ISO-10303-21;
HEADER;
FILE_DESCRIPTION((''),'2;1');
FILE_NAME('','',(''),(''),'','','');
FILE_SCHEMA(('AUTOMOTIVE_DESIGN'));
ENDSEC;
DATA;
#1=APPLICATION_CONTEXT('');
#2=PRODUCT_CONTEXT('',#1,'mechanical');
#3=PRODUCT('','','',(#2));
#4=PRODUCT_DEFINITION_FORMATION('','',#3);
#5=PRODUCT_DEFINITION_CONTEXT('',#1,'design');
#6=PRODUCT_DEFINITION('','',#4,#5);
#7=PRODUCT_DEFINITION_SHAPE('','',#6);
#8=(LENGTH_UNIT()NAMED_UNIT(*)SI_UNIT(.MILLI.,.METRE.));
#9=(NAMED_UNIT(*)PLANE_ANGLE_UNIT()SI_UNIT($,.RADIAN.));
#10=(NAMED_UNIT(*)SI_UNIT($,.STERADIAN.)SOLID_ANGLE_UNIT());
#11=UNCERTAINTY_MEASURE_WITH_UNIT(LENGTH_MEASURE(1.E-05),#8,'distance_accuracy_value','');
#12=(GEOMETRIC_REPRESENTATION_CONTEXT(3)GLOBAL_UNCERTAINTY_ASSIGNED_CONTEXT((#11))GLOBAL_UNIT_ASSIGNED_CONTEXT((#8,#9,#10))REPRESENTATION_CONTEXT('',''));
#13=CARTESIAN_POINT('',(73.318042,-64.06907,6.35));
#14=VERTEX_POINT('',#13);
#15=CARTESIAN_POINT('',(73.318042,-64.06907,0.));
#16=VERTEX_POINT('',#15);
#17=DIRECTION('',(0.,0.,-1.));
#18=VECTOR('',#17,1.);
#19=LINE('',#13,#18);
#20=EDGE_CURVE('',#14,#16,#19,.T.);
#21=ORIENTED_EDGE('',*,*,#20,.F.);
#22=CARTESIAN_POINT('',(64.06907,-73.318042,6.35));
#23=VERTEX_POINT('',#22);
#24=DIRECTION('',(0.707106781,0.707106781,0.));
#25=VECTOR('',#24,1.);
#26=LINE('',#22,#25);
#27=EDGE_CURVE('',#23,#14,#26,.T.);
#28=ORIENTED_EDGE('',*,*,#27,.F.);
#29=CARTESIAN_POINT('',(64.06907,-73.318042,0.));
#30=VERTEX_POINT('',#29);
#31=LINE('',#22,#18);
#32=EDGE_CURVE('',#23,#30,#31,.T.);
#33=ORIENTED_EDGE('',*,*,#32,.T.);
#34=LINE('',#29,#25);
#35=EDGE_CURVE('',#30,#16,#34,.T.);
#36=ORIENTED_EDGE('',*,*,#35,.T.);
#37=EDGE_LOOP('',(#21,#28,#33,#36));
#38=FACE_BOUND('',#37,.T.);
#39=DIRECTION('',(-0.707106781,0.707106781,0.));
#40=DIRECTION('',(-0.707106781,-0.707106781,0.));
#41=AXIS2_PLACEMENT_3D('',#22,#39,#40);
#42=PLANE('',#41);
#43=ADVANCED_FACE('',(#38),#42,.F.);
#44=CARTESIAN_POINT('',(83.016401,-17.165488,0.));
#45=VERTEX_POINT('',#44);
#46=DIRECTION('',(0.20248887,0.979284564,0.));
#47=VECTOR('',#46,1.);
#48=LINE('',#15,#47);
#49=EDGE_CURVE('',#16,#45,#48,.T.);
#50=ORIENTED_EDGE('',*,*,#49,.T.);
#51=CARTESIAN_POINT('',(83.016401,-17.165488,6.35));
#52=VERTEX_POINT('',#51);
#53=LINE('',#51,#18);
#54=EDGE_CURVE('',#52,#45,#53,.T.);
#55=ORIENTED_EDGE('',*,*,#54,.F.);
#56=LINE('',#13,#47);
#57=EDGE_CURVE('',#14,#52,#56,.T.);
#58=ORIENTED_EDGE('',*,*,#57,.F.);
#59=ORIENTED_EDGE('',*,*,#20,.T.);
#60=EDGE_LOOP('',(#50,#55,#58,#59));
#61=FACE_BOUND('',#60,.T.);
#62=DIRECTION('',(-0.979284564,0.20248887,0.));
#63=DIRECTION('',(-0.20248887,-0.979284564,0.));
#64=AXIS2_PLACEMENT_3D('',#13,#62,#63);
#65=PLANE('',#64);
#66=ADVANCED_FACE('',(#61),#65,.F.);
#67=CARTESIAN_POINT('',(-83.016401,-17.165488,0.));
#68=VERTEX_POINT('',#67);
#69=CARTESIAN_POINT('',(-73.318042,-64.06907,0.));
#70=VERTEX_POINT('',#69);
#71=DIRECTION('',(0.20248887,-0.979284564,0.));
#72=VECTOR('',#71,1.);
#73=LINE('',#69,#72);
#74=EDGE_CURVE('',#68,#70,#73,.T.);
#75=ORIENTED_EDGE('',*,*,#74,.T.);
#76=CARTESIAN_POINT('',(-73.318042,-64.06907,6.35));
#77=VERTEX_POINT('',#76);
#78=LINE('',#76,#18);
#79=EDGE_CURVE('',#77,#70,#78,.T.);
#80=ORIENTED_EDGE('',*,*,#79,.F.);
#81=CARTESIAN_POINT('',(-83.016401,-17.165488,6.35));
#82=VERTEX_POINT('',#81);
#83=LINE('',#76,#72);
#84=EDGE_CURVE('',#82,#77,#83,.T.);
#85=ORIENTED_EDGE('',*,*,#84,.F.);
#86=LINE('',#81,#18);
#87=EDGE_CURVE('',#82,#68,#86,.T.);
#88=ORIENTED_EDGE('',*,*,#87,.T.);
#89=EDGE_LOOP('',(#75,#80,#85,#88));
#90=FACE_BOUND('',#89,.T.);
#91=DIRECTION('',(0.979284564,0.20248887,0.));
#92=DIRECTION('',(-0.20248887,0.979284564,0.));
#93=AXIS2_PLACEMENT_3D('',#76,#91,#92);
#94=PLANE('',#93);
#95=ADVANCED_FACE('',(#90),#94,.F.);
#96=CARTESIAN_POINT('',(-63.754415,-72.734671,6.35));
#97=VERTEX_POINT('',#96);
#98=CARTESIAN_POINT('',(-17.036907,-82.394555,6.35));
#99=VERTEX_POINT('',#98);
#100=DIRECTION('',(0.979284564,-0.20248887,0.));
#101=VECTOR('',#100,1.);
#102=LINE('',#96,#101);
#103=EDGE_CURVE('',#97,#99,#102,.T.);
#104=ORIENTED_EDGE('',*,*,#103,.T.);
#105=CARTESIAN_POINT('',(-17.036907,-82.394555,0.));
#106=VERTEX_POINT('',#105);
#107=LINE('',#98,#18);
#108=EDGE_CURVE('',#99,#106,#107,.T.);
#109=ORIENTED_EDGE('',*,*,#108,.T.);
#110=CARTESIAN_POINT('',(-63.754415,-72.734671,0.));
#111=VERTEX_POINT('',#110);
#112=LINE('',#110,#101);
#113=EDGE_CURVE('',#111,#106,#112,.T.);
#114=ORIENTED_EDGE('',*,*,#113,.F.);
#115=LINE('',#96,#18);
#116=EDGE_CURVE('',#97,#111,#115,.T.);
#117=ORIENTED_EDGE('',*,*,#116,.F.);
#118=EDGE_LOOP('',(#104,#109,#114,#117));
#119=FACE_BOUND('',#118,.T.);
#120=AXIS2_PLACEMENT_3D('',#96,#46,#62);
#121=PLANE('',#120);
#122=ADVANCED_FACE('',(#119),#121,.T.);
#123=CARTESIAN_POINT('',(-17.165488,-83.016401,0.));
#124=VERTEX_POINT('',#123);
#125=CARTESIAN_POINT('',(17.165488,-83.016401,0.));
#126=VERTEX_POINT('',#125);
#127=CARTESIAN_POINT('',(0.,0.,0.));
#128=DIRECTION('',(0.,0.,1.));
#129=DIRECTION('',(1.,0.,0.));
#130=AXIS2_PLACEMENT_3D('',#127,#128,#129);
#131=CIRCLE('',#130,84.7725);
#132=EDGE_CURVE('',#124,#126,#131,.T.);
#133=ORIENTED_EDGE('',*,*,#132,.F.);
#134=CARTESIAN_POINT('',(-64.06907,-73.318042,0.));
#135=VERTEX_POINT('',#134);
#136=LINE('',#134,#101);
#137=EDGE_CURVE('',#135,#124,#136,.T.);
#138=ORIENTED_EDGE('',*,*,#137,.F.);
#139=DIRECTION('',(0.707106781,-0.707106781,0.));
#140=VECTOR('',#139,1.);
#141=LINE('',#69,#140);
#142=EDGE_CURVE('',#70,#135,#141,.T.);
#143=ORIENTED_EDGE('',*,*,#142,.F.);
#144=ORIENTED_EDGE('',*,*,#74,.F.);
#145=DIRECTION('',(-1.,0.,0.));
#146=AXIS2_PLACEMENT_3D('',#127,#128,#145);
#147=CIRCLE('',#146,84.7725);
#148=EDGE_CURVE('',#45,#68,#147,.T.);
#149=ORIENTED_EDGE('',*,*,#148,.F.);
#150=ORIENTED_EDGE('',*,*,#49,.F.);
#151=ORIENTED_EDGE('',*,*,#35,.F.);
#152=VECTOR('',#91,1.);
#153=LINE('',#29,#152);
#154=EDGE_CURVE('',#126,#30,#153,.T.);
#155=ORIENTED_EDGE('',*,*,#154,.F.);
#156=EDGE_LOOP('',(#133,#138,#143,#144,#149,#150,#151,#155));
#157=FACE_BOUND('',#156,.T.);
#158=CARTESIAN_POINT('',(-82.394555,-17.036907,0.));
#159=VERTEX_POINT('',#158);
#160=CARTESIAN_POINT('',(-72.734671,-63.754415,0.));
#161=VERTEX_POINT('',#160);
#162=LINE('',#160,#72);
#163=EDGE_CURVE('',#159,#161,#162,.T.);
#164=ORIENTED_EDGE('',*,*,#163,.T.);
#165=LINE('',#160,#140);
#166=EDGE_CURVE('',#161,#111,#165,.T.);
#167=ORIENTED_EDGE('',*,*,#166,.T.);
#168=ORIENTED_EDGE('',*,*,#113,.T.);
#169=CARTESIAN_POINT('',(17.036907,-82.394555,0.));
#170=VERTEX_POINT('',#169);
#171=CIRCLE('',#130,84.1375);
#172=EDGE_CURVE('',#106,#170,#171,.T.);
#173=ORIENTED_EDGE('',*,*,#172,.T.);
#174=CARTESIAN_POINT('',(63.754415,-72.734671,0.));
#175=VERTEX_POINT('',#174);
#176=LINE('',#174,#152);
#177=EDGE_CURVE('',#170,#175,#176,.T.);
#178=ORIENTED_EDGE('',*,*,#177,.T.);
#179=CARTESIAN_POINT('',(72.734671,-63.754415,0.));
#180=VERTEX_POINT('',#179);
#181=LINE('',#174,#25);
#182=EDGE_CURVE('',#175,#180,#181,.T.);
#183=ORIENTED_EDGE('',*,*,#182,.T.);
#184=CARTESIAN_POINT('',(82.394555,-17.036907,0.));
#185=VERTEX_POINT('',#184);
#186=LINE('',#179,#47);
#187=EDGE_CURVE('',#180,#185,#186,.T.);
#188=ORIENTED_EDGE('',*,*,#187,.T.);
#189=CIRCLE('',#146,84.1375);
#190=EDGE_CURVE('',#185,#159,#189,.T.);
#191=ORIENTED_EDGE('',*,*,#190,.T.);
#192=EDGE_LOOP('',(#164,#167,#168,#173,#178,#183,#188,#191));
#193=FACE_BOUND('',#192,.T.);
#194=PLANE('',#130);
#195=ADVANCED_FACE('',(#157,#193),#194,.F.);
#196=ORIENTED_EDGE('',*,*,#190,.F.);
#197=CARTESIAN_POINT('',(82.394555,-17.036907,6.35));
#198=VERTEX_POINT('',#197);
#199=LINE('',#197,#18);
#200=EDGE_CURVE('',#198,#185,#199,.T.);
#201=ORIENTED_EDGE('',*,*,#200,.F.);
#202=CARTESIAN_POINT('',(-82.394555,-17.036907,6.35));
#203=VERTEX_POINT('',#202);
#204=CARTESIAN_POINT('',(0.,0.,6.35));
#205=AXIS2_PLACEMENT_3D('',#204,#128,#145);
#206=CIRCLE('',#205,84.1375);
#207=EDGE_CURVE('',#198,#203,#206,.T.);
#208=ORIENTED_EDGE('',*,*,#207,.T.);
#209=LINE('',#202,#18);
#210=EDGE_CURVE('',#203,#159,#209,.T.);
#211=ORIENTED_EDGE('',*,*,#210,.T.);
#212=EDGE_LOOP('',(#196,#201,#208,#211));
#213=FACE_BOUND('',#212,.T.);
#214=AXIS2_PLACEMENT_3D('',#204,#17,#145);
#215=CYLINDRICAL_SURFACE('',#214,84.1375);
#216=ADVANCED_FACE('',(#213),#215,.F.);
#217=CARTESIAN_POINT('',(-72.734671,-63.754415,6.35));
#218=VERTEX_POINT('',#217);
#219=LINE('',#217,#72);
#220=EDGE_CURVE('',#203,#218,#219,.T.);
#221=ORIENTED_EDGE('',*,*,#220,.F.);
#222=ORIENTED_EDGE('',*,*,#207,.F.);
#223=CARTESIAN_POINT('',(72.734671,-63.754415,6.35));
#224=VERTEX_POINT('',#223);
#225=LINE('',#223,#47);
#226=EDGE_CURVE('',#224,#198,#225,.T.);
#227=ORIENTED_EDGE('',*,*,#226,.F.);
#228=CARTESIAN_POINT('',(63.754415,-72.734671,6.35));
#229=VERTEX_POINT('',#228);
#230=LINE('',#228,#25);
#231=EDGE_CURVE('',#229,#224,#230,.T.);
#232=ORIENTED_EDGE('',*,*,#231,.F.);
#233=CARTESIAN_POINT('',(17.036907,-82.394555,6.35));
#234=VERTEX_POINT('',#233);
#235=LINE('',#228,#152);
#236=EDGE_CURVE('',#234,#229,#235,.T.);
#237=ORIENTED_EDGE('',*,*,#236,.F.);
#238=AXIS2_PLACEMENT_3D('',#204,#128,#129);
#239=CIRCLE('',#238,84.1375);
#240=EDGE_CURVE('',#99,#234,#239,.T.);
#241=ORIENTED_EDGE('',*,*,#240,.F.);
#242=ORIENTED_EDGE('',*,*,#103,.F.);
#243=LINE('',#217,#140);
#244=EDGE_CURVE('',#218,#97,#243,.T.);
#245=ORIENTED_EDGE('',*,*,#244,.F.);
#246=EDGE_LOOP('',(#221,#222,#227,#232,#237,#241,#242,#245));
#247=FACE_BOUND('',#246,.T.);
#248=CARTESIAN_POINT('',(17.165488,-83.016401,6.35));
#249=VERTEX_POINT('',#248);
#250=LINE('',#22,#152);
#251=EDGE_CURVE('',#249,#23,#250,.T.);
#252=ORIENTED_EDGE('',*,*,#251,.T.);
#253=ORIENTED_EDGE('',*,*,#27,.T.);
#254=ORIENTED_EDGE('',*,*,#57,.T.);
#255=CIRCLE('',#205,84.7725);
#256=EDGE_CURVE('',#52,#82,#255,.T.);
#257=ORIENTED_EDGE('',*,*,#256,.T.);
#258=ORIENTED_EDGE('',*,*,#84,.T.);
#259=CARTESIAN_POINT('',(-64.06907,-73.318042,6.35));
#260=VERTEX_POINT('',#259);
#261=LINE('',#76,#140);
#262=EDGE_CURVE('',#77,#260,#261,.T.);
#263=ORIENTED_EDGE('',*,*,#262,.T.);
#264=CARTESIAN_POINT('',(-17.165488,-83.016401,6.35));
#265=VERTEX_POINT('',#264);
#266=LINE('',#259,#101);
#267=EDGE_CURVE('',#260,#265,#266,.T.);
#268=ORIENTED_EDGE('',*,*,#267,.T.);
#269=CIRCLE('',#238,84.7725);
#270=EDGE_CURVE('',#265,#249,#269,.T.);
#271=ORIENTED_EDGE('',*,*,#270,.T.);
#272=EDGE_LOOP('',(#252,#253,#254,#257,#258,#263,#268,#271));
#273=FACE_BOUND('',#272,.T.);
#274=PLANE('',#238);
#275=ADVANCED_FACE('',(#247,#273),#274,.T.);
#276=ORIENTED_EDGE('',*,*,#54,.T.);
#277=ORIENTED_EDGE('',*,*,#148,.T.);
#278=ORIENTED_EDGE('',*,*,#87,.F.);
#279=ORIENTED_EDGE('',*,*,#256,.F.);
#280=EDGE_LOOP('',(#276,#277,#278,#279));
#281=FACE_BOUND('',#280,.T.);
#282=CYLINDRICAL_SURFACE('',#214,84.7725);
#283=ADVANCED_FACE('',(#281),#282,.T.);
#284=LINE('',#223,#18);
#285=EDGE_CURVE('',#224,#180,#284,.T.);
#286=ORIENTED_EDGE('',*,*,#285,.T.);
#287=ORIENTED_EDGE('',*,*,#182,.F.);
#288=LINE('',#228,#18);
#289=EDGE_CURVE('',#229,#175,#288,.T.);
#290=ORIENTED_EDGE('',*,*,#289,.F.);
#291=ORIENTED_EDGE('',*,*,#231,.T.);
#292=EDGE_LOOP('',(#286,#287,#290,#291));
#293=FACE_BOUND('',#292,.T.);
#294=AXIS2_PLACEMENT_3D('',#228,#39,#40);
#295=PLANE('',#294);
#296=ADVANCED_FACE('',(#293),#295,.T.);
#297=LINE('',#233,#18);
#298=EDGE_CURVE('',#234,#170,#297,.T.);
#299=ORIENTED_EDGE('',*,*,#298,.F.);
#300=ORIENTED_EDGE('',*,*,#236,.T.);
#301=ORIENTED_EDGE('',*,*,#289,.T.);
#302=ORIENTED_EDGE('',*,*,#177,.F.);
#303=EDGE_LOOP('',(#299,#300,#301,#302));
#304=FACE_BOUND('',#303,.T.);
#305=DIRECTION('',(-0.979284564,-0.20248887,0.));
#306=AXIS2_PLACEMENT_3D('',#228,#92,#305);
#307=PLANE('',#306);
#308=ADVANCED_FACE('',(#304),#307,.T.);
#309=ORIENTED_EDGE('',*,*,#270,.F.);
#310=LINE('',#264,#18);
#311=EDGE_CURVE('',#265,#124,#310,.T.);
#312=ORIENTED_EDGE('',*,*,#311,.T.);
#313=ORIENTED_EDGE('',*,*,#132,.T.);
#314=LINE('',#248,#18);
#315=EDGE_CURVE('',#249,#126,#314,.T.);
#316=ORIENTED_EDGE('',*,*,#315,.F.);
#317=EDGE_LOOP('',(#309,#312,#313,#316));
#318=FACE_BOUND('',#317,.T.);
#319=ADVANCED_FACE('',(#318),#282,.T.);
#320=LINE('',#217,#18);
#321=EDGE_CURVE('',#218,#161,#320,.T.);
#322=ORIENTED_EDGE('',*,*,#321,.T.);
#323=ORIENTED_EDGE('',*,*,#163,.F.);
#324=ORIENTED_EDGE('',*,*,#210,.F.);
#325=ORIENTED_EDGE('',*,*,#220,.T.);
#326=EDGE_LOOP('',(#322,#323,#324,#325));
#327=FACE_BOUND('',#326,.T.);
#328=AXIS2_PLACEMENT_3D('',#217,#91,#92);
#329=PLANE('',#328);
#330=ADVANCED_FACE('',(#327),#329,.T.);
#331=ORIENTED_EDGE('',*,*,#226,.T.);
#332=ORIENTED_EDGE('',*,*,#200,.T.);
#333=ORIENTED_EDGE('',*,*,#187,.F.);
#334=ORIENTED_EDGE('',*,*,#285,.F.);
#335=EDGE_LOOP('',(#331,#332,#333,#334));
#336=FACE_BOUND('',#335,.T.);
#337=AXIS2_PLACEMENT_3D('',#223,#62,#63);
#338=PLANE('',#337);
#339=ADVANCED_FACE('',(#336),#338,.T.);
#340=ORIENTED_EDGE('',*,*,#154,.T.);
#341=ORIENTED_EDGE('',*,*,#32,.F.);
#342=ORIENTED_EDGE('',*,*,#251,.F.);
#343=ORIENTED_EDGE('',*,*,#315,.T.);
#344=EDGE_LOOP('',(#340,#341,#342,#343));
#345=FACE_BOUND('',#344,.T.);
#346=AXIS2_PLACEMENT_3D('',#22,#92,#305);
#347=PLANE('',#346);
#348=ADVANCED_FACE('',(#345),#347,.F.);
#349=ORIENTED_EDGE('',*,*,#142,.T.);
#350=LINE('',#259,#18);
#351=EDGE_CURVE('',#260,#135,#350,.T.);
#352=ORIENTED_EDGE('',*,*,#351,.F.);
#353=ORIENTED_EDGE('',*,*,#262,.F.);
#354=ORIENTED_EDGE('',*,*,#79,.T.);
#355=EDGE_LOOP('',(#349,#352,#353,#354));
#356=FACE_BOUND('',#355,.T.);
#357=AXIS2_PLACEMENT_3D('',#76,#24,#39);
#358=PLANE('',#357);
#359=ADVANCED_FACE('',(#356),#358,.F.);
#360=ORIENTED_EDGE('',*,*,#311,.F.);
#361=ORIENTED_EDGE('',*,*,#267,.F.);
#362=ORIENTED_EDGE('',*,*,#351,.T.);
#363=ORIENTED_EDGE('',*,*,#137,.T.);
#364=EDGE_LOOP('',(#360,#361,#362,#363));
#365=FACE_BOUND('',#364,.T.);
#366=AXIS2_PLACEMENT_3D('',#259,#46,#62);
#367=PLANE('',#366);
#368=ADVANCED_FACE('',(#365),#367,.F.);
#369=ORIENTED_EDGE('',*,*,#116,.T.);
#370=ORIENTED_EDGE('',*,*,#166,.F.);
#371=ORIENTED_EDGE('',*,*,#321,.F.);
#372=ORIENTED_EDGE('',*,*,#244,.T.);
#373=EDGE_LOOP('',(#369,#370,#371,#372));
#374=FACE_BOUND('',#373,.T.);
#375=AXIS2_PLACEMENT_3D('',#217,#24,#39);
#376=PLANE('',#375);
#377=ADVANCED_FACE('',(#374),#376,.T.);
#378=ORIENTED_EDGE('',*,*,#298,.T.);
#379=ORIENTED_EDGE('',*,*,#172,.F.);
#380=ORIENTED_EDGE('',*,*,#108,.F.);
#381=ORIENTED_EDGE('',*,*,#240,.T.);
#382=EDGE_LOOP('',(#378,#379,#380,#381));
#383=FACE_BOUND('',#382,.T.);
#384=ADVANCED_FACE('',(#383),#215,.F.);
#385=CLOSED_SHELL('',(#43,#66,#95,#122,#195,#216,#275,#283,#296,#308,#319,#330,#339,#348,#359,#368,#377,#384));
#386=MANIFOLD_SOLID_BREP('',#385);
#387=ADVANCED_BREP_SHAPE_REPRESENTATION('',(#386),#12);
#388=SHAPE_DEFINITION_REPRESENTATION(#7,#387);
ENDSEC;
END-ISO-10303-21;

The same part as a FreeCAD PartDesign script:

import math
import FreeCAD as App
import Part
import Sketcher

V = App.Vector
Q = App.Units.Quantity

doc = App.newDocument("Part")
params = doc.addObject("Spreadsheet::Sheet", "Params")
for row, (alias, value) in enumerate([
    ("sketch1_radius", "3.3125 in"),
    ("sketch1_length", "0.5 in"),
    ("pad1_length", "0.25 in"),
], start=1):
    params.set(f"A{row}", alias)
    params.set(f"B{row}", "=" + value)
    params.setAlias(f"B{row}", alias)

body = doc.addObject("PartDesign::Body", "Body")

sketch1 = body.newObject("Sketcher::SketchObject", "Sketch")
sketch1.AttachmentSupport = (doc.getObject("XY_Plane"), [""])
sketch1.MapMode = "FlatFace"
sketch1.addGeometry(Part.LineSegment(V(-83, -17, 0), V(-73, -64, 0)), False)
sketch1.addGeometry(Part.LineSegment(V(-73, -64, 0), V(-64, -73, 0)), False)
sketch1.addGeometry(Part.LineSegment(V(-64, -73, 0), V(-17, -83, 0)), False)
sketch1.addGeometry(Part.ArcOfCircle(Part.Circle(V(0, 0, 0), V(0, 0, 1), 85), math.radians(-102), math.radians(-78)), False)
sketch1.addGeometry(Part.LineSegment(V(17, -83, 0), V(64, -73, 0)), False)
sketch1.addGeometry(Part.LineSegment(V(64, -73, 0), V(73, -64, 0)), False)
sketch1.addGeometry(Part.LineSegment(V(73, -64, 0), V(83, -17, 0)), False)
sketch1.addGeometry(Part.ArcOfCircle(Part.Circle(V(0, 0, 0), V(0, 0, 1), 85), math.radians(-12), math.radians(192)), False)
sketch1.addGeometry(Part.LineSegment(V(64, -73, 0), V(17, -82, 0)), False)
sketch1.addGeometry(Part.ArcOfCircle(Part.Circle(V(0, 0, 0), V(0, 0, 1), 84), math.radians(-102), math.radians(-78)), False)
sketch1.addGeometry(Part.LineSegment(V(-17, -82, 0), V(-64, -73, 0)), False)
sketch1.addGeometry(Part.LineSegment(V(-64, -73, 0), V(-73, -64, 0)), False)
sketch1.addGeometry(Part.LineSegment(V(-73, -64, 0), V(-82, -17, 0)), False)
sketch1.addGeometry(Part.ArcOfCircle(Part.Circle(V(0, 0, 0), V(0, 0, 1), 84), math.radians(-12), math.radians(192)), False)
sketch1.addGeometry(Part.LineSegment(V(82, -17, 0), V(73, -64, 0)), False)
sketch1.addGeometry(Part.LineSegment(V(73, -64, 0), V(64, -73, 0)), False)
sketch1.addConstraint(Sketcher.Constraint("Coincident", 0, 2, 1, 1))
sketch1.addConstraint(Sketcher.Constraint("Coincident", 1, 2, 2, 1))
sketch1.addConstraint(Sketcher.Constraint("Tangent", 2, 2, 3, 1))
sketch1.addConstraint(Sketcher.Constraint("Tangent", 3, 2, 4, 1))
sketch1.addConstraint(Sketcher.Constraint("Coincident", 4, 2, 5, 1))
sketch1.addConstraint(Sketcher.Constraint("Coincident", 5, 2, 6, 1))
sketch1.addConstraint(Sketcher.Constraint("Tangent", 6, 2, 7, 1))
sketch1.addConstraint(Sketcher.Constraint("Tangent", 7, 2, 0, 1))
sketch1.addConstraint(Sketcher.Constraint("Tangent", 8, 2, 9, 2))
sketch1.addConstraint(Sketcher.Constraint("Tangent", 9, 1, 10, 1))
sketch1.addConstraint(Sketcher.Constraint("Coincident", 10, 2, 11, 1))
sketch1.addConstraint(Sketcher.Constraint("Coincident", 11, 2, 12, 1))
sketch1.addConstraint(Sketcher.Constraint("Tangent", 12, 2, 13, 2))
sketch1.addConstraint(Sketcher.Constraint("Tangent", 13, 1, 14, 1))
sketch1.addConstraint(Sketcher.Constraint("Coincident", 14, 2, 15, 1))
sketch1.addConstraint(Sketcher.Constraint("Coincident", 15, 2, 8, 1))
sketch1.addConstraint(Sketcher.Constraint("Coincident", 3, 3, -1, 1))
sketch1.addConstraint(Sketcher.Constraint("Coincident", 7, 3, -1, 1))
sketch1.addConstraint(Sketcher.Constraint("Coincident", 9, 3, -1, 1))
sketch1.addConstraint(Sketcher.Constraint("Coincident", 13, 3, -1, 1))
sketch1.addConstraint(Sketcher.Constraint("Equal", 3, 7))
sketch1.addConstraint(Sketcher.Constraint("Equal", 9, 13))
sketch1.addConstraint(Sketcher.Constraint("Symmetric", 1, 2, 4, 2, -2))
sketch1.addConstraint(Sketcher.Constraint("Symmetric", 0, 2, 5, 2, -2))
sketch1.addConstraint(Sketcher.Constraint("Symmetric", 11, 2, 14, 2, -2))
sketch1.addConstraint(Sketcher.Constraint("Symmetric", 10, 2, 15, 2, -2))
sketch1.addConstraint(Sketcher.Constraint("Perpendicular", 0, 4))
sketch1.addConstraint(Sketcher.Constraint("Perpendicular", 1, 5))
sketch1.addConstraint(Sketcher.Constraint("Parallel", 4, 8))
sketch1.addConstraint(Sketcher.Constraint("Perpendicular", 5, 11))
sketch1.addConstraint(Sketcher.Constraint("Perpendicular", 8, 12))
sketch1.addConstraint(Sketcher.Constraint("Radius", 9, Q("3.3125 in")))
sketch1.addConstraint(Sketcher.Constraint("Distance", 11, Q("0.5 in")))
sketch1.addConstraint(Sketcher.Constraint("Radius", 3, Q("3.3375 in")))
sketch1.addConstraint(Sketcher.Constraint("DistanceY", 2, 2, -1, 1, 83.016401))
sketch1.addConstraint(Sketcher.Constraint("DistanceY", 10, 2, 0, 2, 8.665601))
sketch1.setExpression("Constraints[31]", "Params.sketch1_radius")
sketch1.setExpression("Constraints[32]", "Params.sketch1_length")
pad1 = body.newObject("PartDesign::Pad", "Pad")
pad1.Profile = sketch1
pad1.setExpression("Length", "Params.pad1_length")

doc.recompute()
